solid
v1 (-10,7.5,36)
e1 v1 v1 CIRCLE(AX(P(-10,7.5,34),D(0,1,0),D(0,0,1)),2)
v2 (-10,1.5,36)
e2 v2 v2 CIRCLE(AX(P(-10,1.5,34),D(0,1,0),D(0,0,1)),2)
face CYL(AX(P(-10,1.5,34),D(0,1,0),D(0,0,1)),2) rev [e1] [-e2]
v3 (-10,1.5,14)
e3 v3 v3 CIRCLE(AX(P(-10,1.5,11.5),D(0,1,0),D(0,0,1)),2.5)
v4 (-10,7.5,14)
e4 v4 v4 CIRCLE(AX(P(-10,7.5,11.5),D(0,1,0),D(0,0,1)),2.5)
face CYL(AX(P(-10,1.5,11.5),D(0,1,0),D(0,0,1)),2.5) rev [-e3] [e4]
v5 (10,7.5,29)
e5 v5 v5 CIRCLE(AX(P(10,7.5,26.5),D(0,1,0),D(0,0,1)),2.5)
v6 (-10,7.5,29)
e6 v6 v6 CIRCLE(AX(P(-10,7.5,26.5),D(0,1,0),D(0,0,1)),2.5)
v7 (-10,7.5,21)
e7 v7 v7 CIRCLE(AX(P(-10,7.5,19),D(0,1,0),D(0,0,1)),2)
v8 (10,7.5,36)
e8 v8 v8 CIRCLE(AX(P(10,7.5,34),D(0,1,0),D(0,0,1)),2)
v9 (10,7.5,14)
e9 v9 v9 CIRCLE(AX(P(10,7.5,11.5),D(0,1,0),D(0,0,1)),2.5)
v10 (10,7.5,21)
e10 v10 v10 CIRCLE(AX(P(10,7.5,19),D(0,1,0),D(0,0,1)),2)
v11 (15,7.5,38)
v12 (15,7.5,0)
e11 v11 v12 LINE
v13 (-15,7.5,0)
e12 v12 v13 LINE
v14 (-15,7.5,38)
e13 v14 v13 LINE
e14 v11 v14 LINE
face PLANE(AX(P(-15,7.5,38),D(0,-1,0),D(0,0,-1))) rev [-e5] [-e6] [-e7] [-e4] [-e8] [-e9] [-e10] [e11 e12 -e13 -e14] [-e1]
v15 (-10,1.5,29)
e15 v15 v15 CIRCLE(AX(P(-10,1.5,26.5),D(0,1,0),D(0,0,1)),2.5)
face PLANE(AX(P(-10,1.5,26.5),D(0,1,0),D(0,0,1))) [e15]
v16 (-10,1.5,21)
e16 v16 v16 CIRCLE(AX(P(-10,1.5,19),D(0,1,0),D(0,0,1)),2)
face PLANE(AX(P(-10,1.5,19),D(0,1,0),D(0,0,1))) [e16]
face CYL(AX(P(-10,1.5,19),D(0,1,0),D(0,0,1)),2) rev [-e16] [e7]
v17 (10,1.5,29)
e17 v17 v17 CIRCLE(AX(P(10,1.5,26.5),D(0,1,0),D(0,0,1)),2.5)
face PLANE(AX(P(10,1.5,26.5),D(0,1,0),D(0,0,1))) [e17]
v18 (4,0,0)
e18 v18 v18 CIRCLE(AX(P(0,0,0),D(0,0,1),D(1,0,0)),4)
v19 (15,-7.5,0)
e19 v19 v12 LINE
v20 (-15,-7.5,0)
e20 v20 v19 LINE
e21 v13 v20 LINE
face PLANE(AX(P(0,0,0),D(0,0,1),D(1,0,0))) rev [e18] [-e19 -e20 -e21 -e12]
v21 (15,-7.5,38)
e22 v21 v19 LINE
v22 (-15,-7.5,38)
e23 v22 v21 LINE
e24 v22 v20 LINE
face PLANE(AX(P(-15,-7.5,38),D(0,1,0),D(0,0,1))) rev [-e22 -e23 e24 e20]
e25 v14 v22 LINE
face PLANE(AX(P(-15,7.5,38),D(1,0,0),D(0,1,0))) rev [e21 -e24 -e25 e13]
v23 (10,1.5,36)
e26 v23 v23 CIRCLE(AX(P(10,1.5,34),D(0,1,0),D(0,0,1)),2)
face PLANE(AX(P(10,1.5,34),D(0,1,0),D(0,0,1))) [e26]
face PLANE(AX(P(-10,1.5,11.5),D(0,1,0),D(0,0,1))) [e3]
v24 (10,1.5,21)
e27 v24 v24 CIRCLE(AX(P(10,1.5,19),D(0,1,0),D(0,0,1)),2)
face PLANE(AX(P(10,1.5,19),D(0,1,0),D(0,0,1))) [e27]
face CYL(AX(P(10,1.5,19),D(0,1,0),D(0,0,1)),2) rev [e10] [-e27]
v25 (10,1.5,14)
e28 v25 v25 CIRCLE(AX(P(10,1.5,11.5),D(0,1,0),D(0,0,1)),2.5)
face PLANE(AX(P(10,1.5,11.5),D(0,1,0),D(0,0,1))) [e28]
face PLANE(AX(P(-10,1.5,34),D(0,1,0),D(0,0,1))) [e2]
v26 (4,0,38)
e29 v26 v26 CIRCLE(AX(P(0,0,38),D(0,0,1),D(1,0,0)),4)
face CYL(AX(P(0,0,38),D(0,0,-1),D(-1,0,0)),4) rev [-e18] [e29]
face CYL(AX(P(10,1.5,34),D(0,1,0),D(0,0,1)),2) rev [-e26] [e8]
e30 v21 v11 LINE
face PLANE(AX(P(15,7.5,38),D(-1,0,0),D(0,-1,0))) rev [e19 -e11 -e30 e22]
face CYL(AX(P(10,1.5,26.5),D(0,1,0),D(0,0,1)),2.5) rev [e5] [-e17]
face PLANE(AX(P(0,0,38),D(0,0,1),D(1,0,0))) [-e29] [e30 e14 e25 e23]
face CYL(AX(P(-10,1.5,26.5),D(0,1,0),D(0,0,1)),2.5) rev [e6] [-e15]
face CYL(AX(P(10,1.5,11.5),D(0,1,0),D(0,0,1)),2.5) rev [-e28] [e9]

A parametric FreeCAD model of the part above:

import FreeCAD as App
import Part
import Sketcher
Q = App.Units.Quantity


def add_polygon(sketch, points):
    """Adds a closed chain of lines whose ends are joined by coincident constraints."""
    first, n = sketch.GeometryCount, len(points)
    for a, b in zip(points, points[1:] + points[:1]):
        sketch.addGeometry(Part.LineSegment(App.Vector(*a, 0), App.Vector(*b, 0)), False)
    for i in range(n):
        sketch.addConstraint(Sketcher.Constraint("Coincident", first + i, 2, first + (i + 1) % n, 1))

doc = App.newDocument("Part")
body = doc.addObject("PartDesign::Body", "Body")

# Sketch on XY plane
sketch1 = body.newObject("Sketcher::SketchObject", "Sketch")
sketch1.AttachmentSupport = (doc.getObject("XY_Plane"), [""])
sketch1.MapMode = "FlatFace"
add_polygon(sketch1, [(-15, 7.5), (-15, -7.5), (15, -7.5), (15, 7.5)])  # lines 0-3
sketch1.addGeometry(Part.Circle(App.Vector(0, 0, 0), App.Vector(0, 0, 1), 4), False)  # 4
sketch1.addConstraint([
    Sketcher.Constraint("Vertical", 0),
    Sketcher.Constraint("Horizontal", 1),
    Sketcher.Constraint("Vertical", 2),
    Sketcher.Constraint("Horizontal", 3),
    Sketcher.Constraint("Coincident", 4, 3, -1, 1),
    Sketcher.Constraint("Symmetric", 0, 2, 2, 2, -1, 1),
    Sketcher.Constraint("Diameter", 4, Q("8 mm")),
    Sketcher.Constraint("DistanceX", 1, 1, 1, 2, Q("30 mm")),
    Sketcher.Constraint("DistanceY", 0, 2, 0, 1, Q("15 mm")),
])
pad1 = body.newObject("PartDesign::Pad", "Pad")
pad1.Profile = sketch1
pad1.Length = 38

# Sketch on XZ plane
sketch2 = body.newObject("Sketcher::SketchObject", "Sketch001")
sketch2.AttachmentSupport = (doc.getObject("XZ_Plane"), [""])
sketch2.MapMode = "FlatFace"
sketch2.AttachmentOffset = App.Placement(App.Vector(0, 0, -7.5), App.Rotation())
sketch2.addGeometry([
    Part.Circle(App.Vector(10, 19, 0), App.Vector(0, 0, 1), 2),  # 0
    Part.Circle(App.Vector(-10, 19, 0), App.Vector(0, 0, 1), 2),  # 1
    Part.Circle(App.Vector(10, 26.5, 0), App.Vector(0, 0, 1), 2.5),  # 2
    Part.Circle(App.Vector(-10, 26.5, 0), App.Vector(0, 0, 1), 2.5),  # 3
    Part.Circle(App.Vector(-10, 34, 0), App.Vector(0, 0, 1), 2),  # 4
    Part.Circle(App.Vector(10, 34, 0), App.Vector(0, 0, 1), 2),  # 5
    Part.Circle(App.Vector(10, 11.5, 0), App.Vector(0, 0, 1), 2.5),  # 6
    Part.Circle(App.Vector(-10, 11.5, 0), App.Vector(0, 0, 1), 2.5),  # 7
], False)
sketch2.addConstraint([
    Sketcher.Constraint("Equal", 0, 1),
    Sketcher.Constraint("Equal", 2, 3),
    Sketcher.Constraint("Equal", 1, 4),
    Sketcher.Constraint("Equal", 4, 5),
    Sketcher.Constraint("Equal", 3, 6),
    Sketcher.Constraint("Equal", 6, 7),
    Sketcher.Constraint("Symmetric", 0, 3, 1, 3, -2),
    Sketcher.Constraint("Symmetric", 2, 3, 3, 3, -2),
    Sketcher.Constraint("Symmetric", 4, 3, 5, 3, -2),
    Sketcher.Constraint("Symmetric", 6, 3, 7, 3, -2),
    Sketcher.Constraint("Vertical", 0, 3, 2, 3),
    Sketcher.Constraint("Vertical", 3, 3, 4, 3),
    Sketcher.Constraint("Vertical", 5, 3, 6, 3),
    Sketcher.Constraint("Diameter", 0, Q("4 mm")),
    Sketcher.Constraint("Diameter", 2, Q("5 mm")),
    Sketcher.Constraint("DistanceX", -1, 1, 0, 3, Q("10 mm")),
    Sketcher.Constraint("DistanceY", -1, 1, 0, 3, Q("19 mm")),
    Sketcher.Constraint("DistanceY", -1, 1, 4, 3, Q("34 mm")),
    Sketcher.Constraint("DistanceY", 6, 3, 2, 3, Q("15 mm")),
    Sketcher.Constraint("DistanceY", -1, 1, 2, 3, Q("26.5 mm")),
])
pocket1 = body.newObject("PartDesign::Pocket", "Pocket")
pocket1.Profile = sketch2
pocket1.Length = 6
pocket1.Reversed = True

doc.recompute()
